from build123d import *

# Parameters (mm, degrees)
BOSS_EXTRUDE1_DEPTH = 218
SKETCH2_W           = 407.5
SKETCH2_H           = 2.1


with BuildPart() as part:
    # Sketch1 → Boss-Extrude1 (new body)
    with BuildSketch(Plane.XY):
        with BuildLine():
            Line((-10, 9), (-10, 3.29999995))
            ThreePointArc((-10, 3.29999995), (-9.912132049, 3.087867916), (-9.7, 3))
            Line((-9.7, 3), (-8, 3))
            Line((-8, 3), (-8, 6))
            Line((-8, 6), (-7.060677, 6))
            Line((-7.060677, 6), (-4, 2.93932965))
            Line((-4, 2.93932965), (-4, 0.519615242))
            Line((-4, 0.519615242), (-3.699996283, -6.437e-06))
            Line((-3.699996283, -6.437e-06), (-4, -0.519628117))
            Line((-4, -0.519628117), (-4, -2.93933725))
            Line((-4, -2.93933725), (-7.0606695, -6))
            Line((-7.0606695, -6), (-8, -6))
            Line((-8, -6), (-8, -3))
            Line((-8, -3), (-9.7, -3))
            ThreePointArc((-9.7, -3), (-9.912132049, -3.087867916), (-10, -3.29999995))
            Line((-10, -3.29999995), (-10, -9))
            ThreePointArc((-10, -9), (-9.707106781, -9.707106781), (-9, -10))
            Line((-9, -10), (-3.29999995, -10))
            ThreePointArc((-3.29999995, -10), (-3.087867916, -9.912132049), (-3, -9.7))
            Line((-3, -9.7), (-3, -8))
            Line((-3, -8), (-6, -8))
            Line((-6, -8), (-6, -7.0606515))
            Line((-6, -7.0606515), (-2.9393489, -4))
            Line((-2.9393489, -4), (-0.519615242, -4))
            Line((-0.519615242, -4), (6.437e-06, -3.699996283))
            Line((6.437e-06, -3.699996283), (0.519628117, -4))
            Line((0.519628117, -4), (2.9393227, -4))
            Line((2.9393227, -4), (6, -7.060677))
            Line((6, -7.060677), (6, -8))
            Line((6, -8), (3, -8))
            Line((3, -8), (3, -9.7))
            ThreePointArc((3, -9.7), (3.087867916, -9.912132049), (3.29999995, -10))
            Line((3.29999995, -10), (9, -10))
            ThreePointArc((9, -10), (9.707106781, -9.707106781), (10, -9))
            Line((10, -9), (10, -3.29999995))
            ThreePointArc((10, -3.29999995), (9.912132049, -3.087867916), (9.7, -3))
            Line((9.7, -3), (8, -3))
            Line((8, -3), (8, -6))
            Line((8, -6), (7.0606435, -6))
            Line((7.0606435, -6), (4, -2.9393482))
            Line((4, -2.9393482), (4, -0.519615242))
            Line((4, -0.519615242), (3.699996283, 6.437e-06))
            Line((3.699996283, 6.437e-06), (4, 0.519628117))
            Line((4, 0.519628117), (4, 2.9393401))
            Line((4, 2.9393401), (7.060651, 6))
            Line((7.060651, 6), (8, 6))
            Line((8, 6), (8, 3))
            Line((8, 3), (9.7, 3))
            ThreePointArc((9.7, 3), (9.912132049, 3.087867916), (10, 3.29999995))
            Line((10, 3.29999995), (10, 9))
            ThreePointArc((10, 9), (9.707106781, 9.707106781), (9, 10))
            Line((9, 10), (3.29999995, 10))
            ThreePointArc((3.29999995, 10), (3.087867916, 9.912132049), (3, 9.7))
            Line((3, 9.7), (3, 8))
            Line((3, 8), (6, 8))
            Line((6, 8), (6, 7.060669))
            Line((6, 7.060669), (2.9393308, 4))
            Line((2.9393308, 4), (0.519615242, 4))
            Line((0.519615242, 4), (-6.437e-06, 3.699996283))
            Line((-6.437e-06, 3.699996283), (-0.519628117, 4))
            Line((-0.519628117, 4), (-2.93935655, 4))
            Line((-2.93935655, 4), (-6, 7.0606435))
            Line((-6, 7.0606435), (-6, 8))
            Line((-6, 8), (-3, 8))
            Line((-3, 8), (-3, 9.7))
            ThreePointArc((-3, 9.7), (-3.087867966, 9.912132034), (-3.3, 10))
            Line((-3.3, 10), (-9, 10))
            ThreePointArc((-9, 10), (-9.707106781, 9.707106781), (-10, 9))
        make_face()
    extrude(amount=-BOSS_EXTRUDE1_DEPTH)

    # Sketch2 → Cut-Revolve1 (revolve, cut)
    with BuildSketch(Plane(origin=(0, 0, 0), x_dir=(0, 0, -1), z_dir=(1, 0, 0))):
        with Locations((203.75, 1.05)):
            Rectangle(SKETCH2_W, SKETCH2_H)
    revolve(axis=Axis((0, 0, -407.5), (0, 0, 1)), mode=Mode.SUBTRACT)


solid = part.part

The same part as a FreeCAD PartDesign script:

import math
import FreeCAD as App
import Part
import Sketcher
from FreeCAD import Vector
Q = App.Units.Quantity


def add_polygon(sketch, points):
    """Adds a closed chain of lines whose ends are joined by coincident constraints."""
    first, n = sketch.GeometryCount, len(points)
    for a, b in zip(points, points[1:] + points[:1]):
        sketch.addGeometry(Part.LineSegment(App.Vector(*a, 0), App.Vector(*b, 0)), False)
    for i in range(n):
        sketch.addConstraint(Sketcher.Constraint("Coincident", first + i, 2, first + (i + 1) % n, 1))

doc = App.newDocument("Part")
body = doc.addObject("PartDesign::Body", "Body")

sketch1 = doc.addObject("Sketcher::SketchObject", "Sketch")
body.addObject(sketch1)
sketch1.AttachmentSupport = (doc.XY_Plane, [""])
sketch1.MapMode = "FlatFace"
sketch1.addGeometry([
    Part.LineSegment(Vector(-10, 9, 0), Vector(-10, 3.3, 0)),
    Part.ArcOfCircle(Part.Circle(Vector(-9.7, 3.3, 0), Vector(0, 0, 1), 0.3), math.radians(180), math.radians(270)),
    Part.LineSegment(Vector(-9.7, 3, 0), Vector(-8, 3, 0)),
    Part.LineSegment(Vector(-8, 3, 0), Vector(-8, 6, 0)),
    Part.LineSegment(Vector(-8, 6, 0), Vector(-7.06, 6, 0)),
    Part.LineSegment(Vector(-7.06, 6, 0), Vector(-4, 2.94, 0)),
    Part.LineSegment(Vector(-4, 2.94, 0), Vector(-4, 0.52, 0)),
    Part.LineSegment(Vector(-4, 0.52, 0), Vector(-3.7, 0, 0)),
    Part.LineSegment(Vector(-3.7, 0, 0), Vector(-4, -0.52, 0)),
    Part.LineSegment(Vector(-4, -0.52, 0), Vector(-4, -2.94, 0)),
    Part.LineSegment(Vector(-4, -2.94, 0), Vector(-7.06, -6, 0)),
    Part.LineSegment(Vector(-7.06, -6, 0), Vector(-8, -6, 0)),
    Part.LineSegment(Vector(-8, -6, 0), Vector(-8, -3, 0)),
    Part.LineSegment(Vector(-8, -3, 0), Vector(-9.7, -3, 0)),
    Part.ArcOfCircle(Part.Circle(Vector(-9.7, -3.3, 0), Vector(0, 0, 1), 0.3), math.radians(90), math.radians(180)),
    Part.LineSegment(Vector(-10, -3.3, 0), Vector(-10, -9, 0)),
    Part.ArcOfCircle(Part.Circle(Vector(-9, -9, 0), Vector(0, 0, 1), 1), math.radians(-180), math.radians(-90)),
    Part.LineSegment(Vector(-9, -10, 0), Vector(-3.3, -10, 0)),
    Part.ArcOfCircle(Part.Circle(Vector(-3.3, -9.7, 0), Vector(0, 0, 1), 0.3), math.radians(-90), math.radians(0)),
    Part.LineSegment(Vector(-3, -9.7, 0), Vector(-3, -8, 0)),
    Part.LineSegment(Vector(-3, -8, 0), Vector(-6, -8, 0)),
    Part.LineSegment(Vector(-6, -8, 0), Vector(-6, -7.06, 0)),
    Part.LineSegment(Vector(-6, -7.06, 0), Vector(-2.94, -4, 0)),
    Part.LineSegment(Vector(-2.94, -4, 0), Vector(-0.52, -4, 0)),
    Part.LineSegment(Vector(-0.52, -4, 0), Vector(0, -3.7, 0)),
    Part.LineSegment(Vector(0, -3.7, 0), Vector(0.52, -4, 0)),
    Part.LineSegment(Vector(0.52, -4, 0), Vector(2.94, -4, 0)),
    Part.LineSegment(Vector(2.94, -4, 0), Vector(6, -7.06, 0)),
    Part.LineSegment(Vector(6, -7.06, 0), Vector(6, -8, 0)),
    Part.LineSegment(Vector(6, -8, 0), Vector(3, -8, 0)),
    Part.LineSegment(Vector(3, -8, 0), Vector(3, -9.7, 0)),
    Part.ArcOfCircle(Part.Circle(Vector(3.3, -9.7, 0), Vector(0, 0, 1), 0.3), math.radians(180), math.radians(270)),
    Part.LineSegment(Vector(3.3, -10, 0), Vector(9, -10, 0)),
    Part.ArcOfCircle(Part.Circle(Vector(9, -9, 0), Vector(0, 0, 1), 1), math.radians(-90), math.radians(0)),
    Part.LineSegment(Vector(10, -9, 0), Vector(10, -3.3, 0)),
    Part.ArcOfCircle(Part.Circle(Vector(9.7, -3.3, 0), Vector(0, 0, 1), 0.3), math.radians(0), math.radians(90)),
    Part.LineSegment(Vector(9.7, -3, 0), Vector(8, -3, 0)),
    Part.LineSegment(Vector(8, -3, 0), Vector(8, -6, 0)),
    Part.LineSegment(Vector(8, -6, 0), Vector(7.06, -6, 0)),
    Part.LineSegment(Vector(7.06, -6, 0), Vector(4, -2.94, 0)),
    Part.LineSegment(Vector(4, -2.94, 0), Vector(4, -0.52, 0)),
    Part.LineSegment(Vector(4, -0.52, 0), Vector(3.7, 0, 0)),
    Part.LineSegment(Vector(3.7, 0, 0), Vector(4, 0.52, 0)),
    Part.LineSegment(Vector(4, 0.52, 0), Vector(4, 2.94, 0)),
    Part.LineSegment(Vector(4, 2.94, 0), Vector(7.06, 6, 0)),
    Part.LineSegment(Vector(7.06, 6, 0), Vector(8, 6, 0)),
    Part.LineSegment(Vector(8, 6, 0), Vector(8, 3, 0)),
    Part.LineSegment(Vector(8, 3, 0), Vector(9.7, 3, 0)),
    Part.ArcOfCircle(Part.Circle(Vector(9.7, 3.3, 0), Vector(0, 0, 1), 0.3), math.radians(-90), math.radians(0)),
    Part.LineSegment(Vector(10, 3.3, 0), Vector(10, 9, 0)),
    Part.ArcOfCircle(Part.Circle(Vector(9, 9, 0), Vector(0, 0, 1), 1), math.radians(0), math.radians(90)),
    Part.LineSegment(Vector(9, 10, 0), Vector(3.3, 10, 0)),
    Part.ArcOfCircle(Part.Circle(Vector(3.3, 9.7, 0), Vector(0, 0, 1), 0.3), math.radians(90), math.radians(180)),
    Part.LineSegment(Vector(3, 9.7, 0), Vector(3, 8, 0)),
    Part.LineSegment(Vector(3, 8, 0), Vector(6, 8, 0)),
    Part.LineSegment(Vector(6, 8, 0), Vector(6, 7.06, 0)),
    Part.LineSegment(Vector(6, 7.06, 0), Vector(2.94, 4, 0)),
    Part.LineSegment(Vector(2.94, 4, 0), Vector(0.52, 4, 0)),
    Part.LineSegment(Vector(0.52, 4, 0), Vector(0, 3.7, 0)),
    Part.LineSegment(Vector(0, 3.7, 0), Vector(-0.52, 4, 0)),
    Part.LineSegment(Vector(-0.52, 4, 0), Vector(-2.94, 4, 0)),
    Part.LineSegment(Vector(-2.94, 4, 0), Vector(-6, 7.06, 0)),
    Part.LineSegment(Vector(-6, 7.06, 0), Vector(-6, 8, 0)),
    Part.LineSegment(Vector(-6, 8, 0), Vector(-3, 8, 0)),
    Part.LineSegment(Vector(-3, 8, 0), Vector(-3, 9.7, 0)),
    Part.ArcOfCircle(Part.Circle(Vector(-3.3, 9.7, 0), Vector(0, 0, 1), 0.3), math.radians(0), math.radians(90)),
    Part.LineSegment(Vector(-3.3, 10, 0), Vector(-9, 10, 0)),
    Part.ArcOfCircle(Part.Circle(Vector(-9, 9, 0), Vector(0, 0, 1), 1), math.radians(90), math.radians(180)),
], False)
sketch1.addConstraint([
    Sketcher.Constraint("Tangent", 0, 2, 1, 1),
    Sketcher.Constraint("Tangent", 1, 2, 2, 1),
    Sketcher.Constraint("Coincident", 2, 2, 3, 1),
    Sketcher.Constraint("Coincident", 3, 2, 4, 1),
    Sketcher.Constraint("Coincident", 4, 2, 5, 1),
    Sketcher.Constraint("Coincident", 5, 2, 6, 1),
    Sketcher.Constraint("Coincident", 6, 2, 7, 1),
    Sketcher.Constraint("Coincident", 7, 2, 8, 1),
    Sketcher.Constraint("Coincident", 8, 2, 9, 1),
    Sketcher.Constraint("Coincident", 9, 2, 10, 1),
    Sketcher.Constraint("Coincident", 10, 2, 11, 1),
    Sketcher.Constraint("Coincident", 11, 2, 12, 1),
    Sketcher.Constraint("Coincident", 12, 2, 13, 1),
    Sketcher.Constraint("Tangent", 13, 2, 14, 1),
    Sketcher.Constraint("Tangent", 14, 2, 15, 1),
    Sketcher.Constraint("Tangent", 15, 2, 16, 1),
    Sketcher.Constraint("Tangent", 16, 2, 17, 1),
    Sketcher.Constraint("Tangent", 17, 2, 18, 1),
    Sketcher.Constraint("Tangent", 18, 2, 19, 1),
    Sketcher.Constraint("Coincident", 19, 2, 20, 1),
    Sketcher.Constraint("Coincident", 20, 2, 21, 1),
    Sketcher.Constraint("Coincident", 21, 2, 22, 1),
    Sketcher.Constraint("Coincident", 22, 2, 23, 1),
    Sketcher.Constraint("Coincident", 23, 2, 24, 1),
    Sketcher.Constraint("Coincident", 24, 2, 25, 1),
    Sketcher.Constraint("Coincident", 25, 2, 26, 1),
    Sketcher.Constraint("Coincident", 26, 2, 27, 1),
    Sketcher.Constraint("Coincident", 27, 2, 28, 1),
    Sketcher.Constraint("Coincident", 28, 2, 29, 1),
    Sketcher.Constraint("Coincident", 29, 2, 30, 1),
    Sketcher.Constraint("Tangent", 30, 2, 31, 1),
    Sketcher.Constraint("Tangent", 31, 2, 32, 1),
    Sketcher.Constraint("Tangent", 32, 2, 33, 1),
    Sketcher.Constraint("Tangent", 33, 2, 34, 1),
    Sketcher.Constraint("Tangent", 34, 2, 35, 1),
    Sketcher.Constraint("Tangent", 35, 2, 36, 1),
    Sketcher.Constraint("Coincident", 36, 2, 37, 1),
    Sketcher.Constraint("Coincident", 37, 2, 38, 1),
    Sketcher.Constraint("Coincident", 38, 2, 39, 1),
    Sketcher.Constraint("Coincident", 39, 2, 40, 1),
    Sketcher.Constraint("Coincident", 40, 2, 41, 1),
    Sketcher.Constraint("Coincident", 41, 2, 42, 1),
    Sketcher.Constraint("Coincident", 42, 2, 43, 1),
    Sketcher.Constraint("Coincident", 43, 2, 44, 1),
    Sketcher.Constraint("Coincident", 44, 2, 45, 1),
    Sketcher.Constraint("Coincident", 45, 2, 46, 1),
    Sketcher.Constraint("Coincident", 46, 2, 47, 1),
    Sketcher.Constraint("Tangent", 47, 2, 48, 1),
    Sketcher.Constraint("Tangent", 48, 2, 49, 1),
    Sketcher.Constraint("Tangent", 49, 2, 50, 1),
    Sketcher.Constraint("Tangent", 50, 2, 51, 1),
    Sketcher.Constraint("Tangent", 51, 2, 52, 1),
    Sketcher.Constraint("Tangent", 52, 2, 53, 1),
    Sketcher.Constraint("Coincident", 53, 2, 54, 1),
    Sketcher.Constraint("Coincident", 54, 2, 55, 1),
    Sketcher.Constraint("Coincident", 55, 2, 56, 1),
    Sketcher.Constraint("Coincident", 56, 2, 57, 1),
    Sketcher.Constraint("Coincident", 57, 2, 58, 1),
    Sketcher.Constraint("Coincident", 58, 2, 59, 1),
    Sketcher.Constraint("Coincident", 59, 2, 60, 1),
    Sketcher.Constraint("Coincident", 60, 2, 61, 1),
    Sketcher.Constraint("Coincident", 61, 2, 62, 1),
    Sketcher.Constraint("Coincident", 62, 2, 63, 1),
    Sketcher.Constraint("Coincident", 63, 2, 64, 1),
    Sketcher.Constraint("Tangent", 64, 2, 65, 1),
    Sketcher.Constraint("Tangent", 65, 2, 66, 1),
    Sketcher.Constraint("Tangent", 66, 2, 67, 1),
    Sketcher.Constraint("Tangent", 67, 2, 0, 1),
    Sketcher.Constraint("Vertical", 0),
    Sketcher.Constraint("Horizontal", 2),
    Sketcher.Constraint("Vertical", 3),
    Sketcher.Constraint("Horizontal", 4),
    Sketcher.Constraint("Vertical", 6),
    Sketcher.Constraint("Vertical", 9),
    Sketcher.Constraint("Horizontal", 11),
    Sketcher.Constraint("Vertical", 12),
    Sketcher.Constraint("Horizontal", 13),
    Sketcher.Constraint("Vertical", 15),
    Sketcher.Constraint("Horizontal", 17),
    Sketcher.Constraint("Vertical", 19),
    Sketcher.Constraint("Horizontal", 20),
    Sketcher.Constraint("Vertical", 21),
    Sketcher.Constraint("Horizontal", 23),
    Sketcher.Constraint("Horizontal", 26),
    Sketcher.Constraint("Vertical", 28),
    Sketcher.Constraint("Horizontal", 29),
    Sketcher.Constraint("Vertical", 30),
    Sketcher.Constraint("Horizontal", 32),
    Sketcher.Constraint("Vertical", 34),
    Sketcher.Constraint("Horizontal", 36),
    Sketcher.Constraint("Vertical", 37),
    Sketcher.Constraint("Horizontal", 38),
    Sketcher.Constraint("Vertical", 40),
    Sketcher.Constraint("Vertical", 43),
    Sketcher.Constraint("Horizontal", 45),
    Sketcher.Constraint("Vertical", 46),
    Sketcher.Constraint("Horizontal", 47),
    Sketcher.Constraint("Vertical", 49),
    Sketcher.Constraint("Horizontal", 51),
    Sketcher.Constraint("Vertical", 53),
    Sketcher.Constraint("Horizontal", 54),
    Sketcher.Constraint("Vertical", 55),
    Sketcher.Constraint("Horizontal", 57),
    Sketcher.Constraint("Horizontal", 60),
    Sketcher.Constraint("Vertical", 62),
    Sketcher.Constraint("Horizontal", 63),
    Sketcher.Constraint("Vertical", 64),
    Sketcher.Constraint("Horizontal", 66),
    Sketcher.Constraint("Equal", 1, 14),
    Sketcher.Constraint("Equal", 14, 18),
    Sketcher.Constraint("Equal", 18, 31),
    Sketcher.Constraint("Equal", 16, 33),
    Sketcher.Constraint("Equal", 31, 35),
    Sketcher.Constraint("Equal", 35, 48),
    Sketcher.Constraint("Equal", 33, 50),
    Sketcher.Constraint("Equal", 48, 52),
    Sketcher.Constraint("Equal", 52, 65),
    Sketcher.Constraint("Equal", 50, 67),
    Sketcher.Constraint("Symmetric", 1, 3, 35, 3, -1, 1),
    Sketcher.Constraint("Symmetric", 14, 3, 48, 3, -1, 1),
    Sketcher.Constraint("Symmetric", 18, 3, 52, 3, -1, 1),
    Sketcher.Constraint("Symmetric", 31, 3, 65, 3, -1, 1),
    Sketcher.Constraint("Symmetric", 3, 2, 37, 2, -1, 1),
    Sketcher.Constraint("Symmetric", 6, 2, 40, 2, -1, 1),
    Sketcher.Constraint("Symmetric", 7, 2, 41, 2, -1, 1),
    Sketcher.Constraint("Symmetric", 8, 2, 42, 2, -1, 1),
    Sketcher.Constraint("Symmetric", 11, 2, 45, 2, -1, 1),
    Sketcher.Constraint("Symmetric", 20, 2, 54, 2, -1, 1),
    Sketcher.Constraint("Symmetric", 23, 2, 57, 2, -1, 1),
    Sketcher.Constraint("Symmetric", 24, 2, 58, 2, -1, 1),
    Sketcher.Constraint("Symmetric", 25, 2, 59, 2, -1, 1),
    Sketcher.Constraint("Symmetric", 28, 2, 62, 2, -1, 1),
    Sketcher.Constraint("Symmetric", 18, 3, 31, 3, -2),
    Sketcher.Constraint("Symmetric", 14, 3, 35, 3, -2),
    Sketcher.Constraint("Symmetric", 20, 2, 28, 2, -2),
    Sketcher.Constraint("Symmetric", 11, 2, 37, 2, -2),
    Sketcher.Constraint("Symmetric", 5, 2, 9, 2, -1),
    Sketcher.Constraint("Symmetric", 26, 2, 56, 2, -1),
    Sketcher.Constraint("Parallel", 10, 22),
    Sketcher.Constraint("Perpendicular", 7, 24),
    Sketcher.Constraint("Perpendicular", 8, 25),
    Sketcher.Constraint("Perpendicular", 22, 27),
    Sketcher.Constraint("Parallel", 27, 39),
    Sketcher.Constraint("Perpendicular", 27, 44),
    Sketcher.Constraint("Parallel", 44, 56),
    Sketcher.Constraint("Perpendicular", 56, 61),
    Sketcher.Constraint("Equal", 66, 0),
    Sketcher.Constraint("Equal", 63, 3),
    Sketcher.Constraint("Equal", 57, 6),
    Sketcher.Constraint("Equal", 47, 19),
    Sketcher.Constraint("Equal", 45, 21),
    Sketcher.Constraint("Equal", 4, 28),
    Sketcher.Constraint("Equal", 23, 40),
    Sketcher.Constraint("Equal", 11, 55),
    Sketcher.Constraint("Equal", 38, 62),
    Sketcher.Constraint("Equal", 7, 8),
    Sketcher.Constraint("Equal", 8, 24),
    Sketcher.Constraint("Radius", 16, Q("1 mm")),
    Sketcher.Constraint("Radius", 1, Q("0.3 mm")),
    Sketcher.Constraint("DistanceX", 20, 2, 20, 1, Q("3 mm")),
    Sketcher.Constraint("Angle", 7, Q("-60 deg")),
    Sketcher.Constraint("Angle", 22, Q("45.000004 deg")),
    Sketcher.Constraint("DistanceX", 2, 1, 2, 2, Q("1.7 mm")),
    Sketcher.Constraint("DistanceX", 17, 1, 17, 2, Q("5.7 mm")),
    Sketcher.Constraint("DistanceX", 16, 3, -1, 1, Q("9 mm")),
    Sketcher.Constraint("DistanceY", 16, 3, -1, 1, Q("9 mm")),
    Sketcher.Constraint("DistanceX", 5, 2, -1, 1, Q("4 mm")),
    Sketcher.Constraint("DistanceY", 22, 2, -1, 1, Q("4 mm")),
    Sketcher.Constraint("DistanceX", 11, 2, 11, 1, Q("0.93933 mm")),
    Sketcher.Constraint("DistanceX", 45, 1, 45, 2, Q("0.939349 mm")),
    Sketcher.Constraint("DistanceX", 60, 2, 60, 1, Q("2.419728 mm")),
    Sketcher.Constraint("DistanceX", 23, 1, 23, 2, Q("2.419734 mm")),
])
pad1 = doc.addObject("PartDesign::Pad", "Pad")
body.addObject(pad1)
pad1.Profile = sketch1
pad1.Length = 218
pad1.Reversed = True

sketch2 = doc.addObject("Sketcher::SketchObject", "Sketch001")
body.addObject(sketch2)
sketch2.AttachmentSupport = (doc.YZ_Plane, [""])
sketch2.MapMode = "FlatFace"
add_polygon(sketch2, [(2.1, 0), (0, 0), (0, -407.5), (2.1, -407.5)])
sketch2.addConstraint([
    Sketcher.Constraint("Horizontal", 0),
    Sketcher.Constraint("Vertical", 1),
    Sketcher.Constraint("Horizontal", 2),
    Sketcher.Constraint("Vertical", 3),
    Sketcher.Constraint("Coincident", 0, 2, -1, 1),
    Sketcher.Constraint("DistanceX", 0, 2, 0, 1, Q("2.1 mm")),
    Sketcher.Constraint("DistanceY", 1, 2, 1, 1, Q("407.5 mm")),
])
groove = doc.addObject("PartDesign::Groove", "Groove")
body.addObject(groove)
groove.Profile = sketch2
groove.ReferenceAxis = (sketch2, ["V_Axis"])
groove.Angle = 360

doc.recompute()
